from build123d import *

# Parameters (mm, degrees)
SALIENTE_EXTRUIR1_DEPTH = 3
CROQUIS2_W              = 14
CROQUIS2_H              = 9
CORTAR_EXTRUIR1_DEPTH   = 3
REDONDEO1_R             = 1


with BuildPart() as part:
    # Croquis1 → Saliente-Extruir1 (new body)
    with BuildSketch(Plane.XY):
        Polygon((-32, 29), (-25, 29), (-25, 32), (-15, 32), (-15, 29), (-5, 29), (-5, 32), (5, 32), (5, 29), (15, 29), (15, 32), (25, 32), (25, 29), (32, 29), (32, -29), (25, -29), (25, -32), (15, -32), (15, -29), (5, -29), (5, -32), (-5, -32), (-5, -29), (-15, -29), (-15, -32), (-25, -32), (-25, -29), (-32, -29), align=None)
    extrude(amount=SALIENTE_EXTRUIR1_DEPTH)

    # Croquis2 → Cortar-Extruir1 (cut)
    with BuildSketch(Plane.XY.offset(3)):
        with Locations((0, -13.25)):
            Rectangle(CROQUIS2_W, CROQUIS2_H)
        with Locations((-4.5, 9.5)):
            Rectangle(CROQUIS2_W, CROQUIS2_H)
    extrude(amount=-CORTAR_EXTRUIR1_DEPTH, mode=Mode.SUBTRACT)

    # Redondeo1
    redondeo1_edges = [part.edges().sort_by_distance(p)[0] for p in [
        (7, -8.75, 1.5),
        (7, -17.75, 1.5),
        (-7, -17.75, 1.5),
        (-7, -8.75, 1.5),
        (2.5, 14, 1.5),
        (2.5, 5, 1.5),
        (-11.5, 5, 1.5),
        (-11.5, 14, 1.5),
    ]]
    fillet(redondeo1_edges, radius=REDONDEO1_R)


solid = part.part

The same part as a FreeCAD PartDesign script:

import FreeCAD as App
import Part
import Sketcher
Q = App.Units.Quantity


def edges_at(feature, points):
    """Names of the edges that pass closest to the given points."""
    edges = feature.Shape.Edges
    near = lambda p: min(range(len(edges)), key=lambda i: edges[i].distToShape(Part.Vertex(*p))[0])
    return sorted({f"Edge{near(p) + 1}" for p in points})


def add_polygon(sketch, points):
    """Adds a closed chain of lines whose ends are joined by coincident constraints."""
    first, n = sketch.GeometryCount, len(points)
    for a, b in zip(points, points[1:] + points[:1]):
        sketch.addGeometry(Part.LineSegment(App.Vector(*a, 0), App.Vector(*b, 0)), False)
    for i in range(n):
        sketch.addConstraint(Sketcher.Constraint("Coincident", first + i, 2, first + (i + 1) % n, 1))

doc = App.newDocument("Part")
params = doc.addObject("Spreadsheet::Sheet", "Params")
for row, (alias, value) in enumerate([
    ("sketch1_width", "7 mm"),
    ("sketch1_width2", "10 mm"),
    ("sketch1_height", "58 mm"),
    ("sketch1_height2", "3 mm"),
    ("pad1_length", "3 mm"),
    ("sketch2_width", "14 mm"),
    ("sketch2_height", "9 mm"),
    ("pocket1_length", "3 mm"),
    ("fillet_radius", "1 mm"),
], start=1):
    params.set(f"A{row}", alias)
    params.set(f"B{row}", "=" + value)
    params.setAlias(f"B{row}", alias)

body = doc.addObject("PartDesign::Body", "Body")

# Sketch on XY plane
sketch1 = body.newObject("Sketcher::SketchObject", "Sketch")
sketch1.AttachmentSupport = (doc.getObject("XY_Plane"), [""])
sketch1.MapMode = "FlatFace"
add_polygon(sketch1, [(-25, 29), (-32, 29), (-32, -29), (-25, -29), (-25, -32), (-15, -32), (-15, -29), (-5, -29), (-5, -32), (5, -32), (5, -29), (15, -29), (15, -32), (25, -32), (25, -29), (32, -29), (32, 29), (25, 29), (25, 32), (15, 32), (15, 29), (5, 29), (5, 32), (-5, 32), (-5, 29), (-15, 29), (-15, 32), (-25, 32)])  # lines 0-27
sketch1.addConstraint(Sketcher.Constraint("Horizontal", 0))
sketch1.addConstraint(Sketcher.Constraint("Vertical", 1))
sketch1.addConstraint(Sketcher.Constraint("Horizontal", 2))
sketch1.addConstraint(Sketcher.Constraint("Vertical", 3))
sketch1.addConstraint(Sketcher.Constraint("Horizontal", 4))
sketch1.addConstraint(Sketcher.Constraint("Vertical", 5))
sketch1.addConstraint(Sketcher.Constraint("Horizontal", 6))
sketch1.addConstraint(Sketcher.Constraint("Vertical", 7))
sketch1.addConstraint(Sketcher.Constraint("Horizontal", 8))
sketch1.addConstraint(Sketcher.Constraint("Vertical", 9))
sketch1.addConstraint(Sketcher.Constraint("Horizontal", 10))
sketch1.addConstraint(Sketcher.Constraint("Vertical", 11))
sketch1.addConstraint(Sketcher.Constraint("Horizontal", 12))
sketch1.addConstraint(Sketcher.Constraint("Vertical", 13))
sketch1.addConstraint(Sketcher.Constraint("Horizontal", 14))
sketch1.addConstraint(Sketcher.Constraint("Vertical", 15))
sketch1.addConstraint(Sketcher.Constraint("Horizontal", 16))
sketch1.addConstraint(Sketcher.Constraint("Vertical", 17))
sketch1.addConstraint(Sketcher.Constraint("Horizontal", 18))
sketch1.addConstraint(Sketcher.Constraint("Vertical", 19))
sketch1.addConstraint(Sketcher.Constraint("Horizontal", 20))
sketch1.addConstraint(Sketcher.Constraint("Vertical", 21))
sketch1.addConstraint(Sketcher.Constraint("Horizontal", 22))
sketch1.addConstraint(Sketcher.Constraint("Vertical", 23))
sketch1.addConstraint(Sketcher.Constraint("Horizontal", 24))
sketch1.addConstraint(Sketcher.Constraint("Vertical", 25))
sketch1.addConstraint(Sketcher.Constraint("Horizontal", 26))
sketch1.addConstraint(Sketcher.Constraint("Vertical", 27))
sketch1.addConstraint(Sketcher.Constraint("Symmetric", 0, 2, 14, 2, -1, 1))
sketch1.addConstraint(Sketcher.Constraint("Symmetric", 2, 2, 16, 2, -1, 1))
sketch1.addConstraint(Sketcher.Constraint("Symmetric", 4, 2, 18, 2, -1, 1))
sketch1.addConstraint(Sketcher.Constraint("Symmetric", 6, 2, 20, 2, -1, 1))
sketch1.addConstraint(Sketcher.Constraint("Symmetric", 8, 2, 22, 2, -1, 1))
sketch1.addConstraint(Sketcher.Constraint("Symmetric", 10, 2, 24, 2, -1, 1))
sketch1.addConstraint(Sketcher.Constraint("Symmetric", 12, 2, 26, 2, -1, 1))
sketch1.addConstraint(Sketcher.Constraint("Symmetric", 6, 2, 9, 2, -2))
sketch1.addConstraint(Sketcher.Constraint("Symmetric", 4, 2, 11, 2, -2))
sketch1.addConstraint(Sketcher.Constraint("Symmetric", 2, 2, 13, 2, -2))
sketch1.addConstraint(Sketcher.Constraint("Horizontal", 2, 2, 5, 2))
sketch1.addConstraint(Sketcher.Constraint("Horizontal", 4, 2, 7, 2))
sketch1.addConstraint(Sketcher.Constraint("Equal", 4, 6))
sketch1.addConstraint(Sketcher.Constraint("Equal", 6, 8))
sketch1.addConstraint(Sketcher.Constraint("DistanceX", 0, 2, 0, 1, Q("7 mm")))
sketch1.addConstraint(Sketcher.Constraint("DistanceX", 4, 1, 4, 2, Q("10 mm")))
sketch1.addConstraint(Sketcher.Constraint("DistanceY", 1, 2, 1, 1, Q("58 mm")))
sketch1.addConstraint(Sketcher.Constraint("DistanceY", 3, 2, 3, 1, Q("3 mm")))
sketch1.setExpression("Constraints[70]", "Params.sketch1_width")
sketch1.setExpression("Constraints[71]", "Params.sketch1_width2")
sketch1.setExpression("Constraints[72]", "Params.sketch1_height")
sketch1.setExpression("Constraints[73]", "Params.sketch1_height2")
pad1 = body.newObject("PartDesign::Pad", "Pad")
pad1.Profile = sketch1
pad1.setExpression("Length", "Params.pad1_length")

# Sketch on XY plane
sketch2 = body.newObject("Sketcher::SketchObject", "Sketch001")
sketch2.AttachmentSupport = (doc.getObject("XY_Plane"), [""])
sketch2.MapMode = "FlatFace"
sketch2.AttachmentOffset = App.Placement(App.Vector(0, 0, 3), App.Rotation())
add_polygon(sketch2, [(-7, -9), (-7, -18), (7, -18), (7, -9)])  # lines 0-3
add_polygon(sketch2, [(-12, 14), (-12, 5), (2, 5), (2, 14)])  # lines 4-7
sketch2.addConstraint(Sketcher.Constraint("Vertical", 0))
sketch2.addConstraint(Sketcher.Constraint("Horizontal", 1))
sketch2.addConstraint(Sketcher.Constraint("Vertical", 2))
sketch2.addConstraint(Sketcher.Constraint("Horizontal", 3))
sketch2.addConstraint(Sketcher.Constraint("Vertical", 4))
sketch2.addConstraint(Sketcher.Constraint("Horizontal", 5))
sketch2.addConstraint(Sketcher.Constraint("Vertical", 6))
sketch2.addConstraint(Sketcher.Constraint("Horizontal", 7))
sketch2.addConstraint(Sketcher.Constraint("Equal", 3, 5))
sketch2.addConstraint(Sketcher.Constraint("Equal", 2, 4))
sketch2.addConstraint(Sketcher.Constraint("DistanceX", 1, 1, 1, 2, Q("14 mm")))
sketch2.addConstraint(Sketcher.Constraint("DistanceY", 0, 2, 0, 1, Q("9 mm")))
sketch2.addConstraint(Sketcher.Constraint("DistanceX", 0, 2, -1, 1, Q("7 mm")))
sketch2.addConstraint(Sketcher.Constraint("DistanceY", -1, 1, 4, 2, Q("5 mm")))
sketch2.addConstraint(Sketcher.Constraint("DistanceX", 4, 2, -1, 1, Q("11.5 mm")))
sketch2.addConstraint(Sketcher.Constraint("DistanceY", 0, 2, -1, 1, Q("17.75 mm")))
sketch2.setExpression("Constraints[18]", "Params.sketch2_width")
sketch2.setExpression("Constraints[19]", "Params.sketch2_height")
pocket1 = body.newObject("PartDesign::Pocket", "Pocket")
pocket1.Profile = sketch2
pocket1.setExpression("Length", "Params.pocket1_length")
doc.recompute()

fillet = body.newObject("PartDesign::Fillet", "Fillet")
fillet.Base = (pocket1, edges_at(pocket1, [
    (7, -8.75, 1.5),
    (7, -17.75, 1.5),
    (-7, -17.75, 1.5),
    (-7, -8.75, 1.5),
    (2.5, 14, 1.5),
    (2.5, 5, 1.5),
    (-11.5, 5, 1.5),
    (-11.5, 14, 1.5),
]))
fillet.setExpression("Radius", "Params.fillet_radius")

doc.recompute()
